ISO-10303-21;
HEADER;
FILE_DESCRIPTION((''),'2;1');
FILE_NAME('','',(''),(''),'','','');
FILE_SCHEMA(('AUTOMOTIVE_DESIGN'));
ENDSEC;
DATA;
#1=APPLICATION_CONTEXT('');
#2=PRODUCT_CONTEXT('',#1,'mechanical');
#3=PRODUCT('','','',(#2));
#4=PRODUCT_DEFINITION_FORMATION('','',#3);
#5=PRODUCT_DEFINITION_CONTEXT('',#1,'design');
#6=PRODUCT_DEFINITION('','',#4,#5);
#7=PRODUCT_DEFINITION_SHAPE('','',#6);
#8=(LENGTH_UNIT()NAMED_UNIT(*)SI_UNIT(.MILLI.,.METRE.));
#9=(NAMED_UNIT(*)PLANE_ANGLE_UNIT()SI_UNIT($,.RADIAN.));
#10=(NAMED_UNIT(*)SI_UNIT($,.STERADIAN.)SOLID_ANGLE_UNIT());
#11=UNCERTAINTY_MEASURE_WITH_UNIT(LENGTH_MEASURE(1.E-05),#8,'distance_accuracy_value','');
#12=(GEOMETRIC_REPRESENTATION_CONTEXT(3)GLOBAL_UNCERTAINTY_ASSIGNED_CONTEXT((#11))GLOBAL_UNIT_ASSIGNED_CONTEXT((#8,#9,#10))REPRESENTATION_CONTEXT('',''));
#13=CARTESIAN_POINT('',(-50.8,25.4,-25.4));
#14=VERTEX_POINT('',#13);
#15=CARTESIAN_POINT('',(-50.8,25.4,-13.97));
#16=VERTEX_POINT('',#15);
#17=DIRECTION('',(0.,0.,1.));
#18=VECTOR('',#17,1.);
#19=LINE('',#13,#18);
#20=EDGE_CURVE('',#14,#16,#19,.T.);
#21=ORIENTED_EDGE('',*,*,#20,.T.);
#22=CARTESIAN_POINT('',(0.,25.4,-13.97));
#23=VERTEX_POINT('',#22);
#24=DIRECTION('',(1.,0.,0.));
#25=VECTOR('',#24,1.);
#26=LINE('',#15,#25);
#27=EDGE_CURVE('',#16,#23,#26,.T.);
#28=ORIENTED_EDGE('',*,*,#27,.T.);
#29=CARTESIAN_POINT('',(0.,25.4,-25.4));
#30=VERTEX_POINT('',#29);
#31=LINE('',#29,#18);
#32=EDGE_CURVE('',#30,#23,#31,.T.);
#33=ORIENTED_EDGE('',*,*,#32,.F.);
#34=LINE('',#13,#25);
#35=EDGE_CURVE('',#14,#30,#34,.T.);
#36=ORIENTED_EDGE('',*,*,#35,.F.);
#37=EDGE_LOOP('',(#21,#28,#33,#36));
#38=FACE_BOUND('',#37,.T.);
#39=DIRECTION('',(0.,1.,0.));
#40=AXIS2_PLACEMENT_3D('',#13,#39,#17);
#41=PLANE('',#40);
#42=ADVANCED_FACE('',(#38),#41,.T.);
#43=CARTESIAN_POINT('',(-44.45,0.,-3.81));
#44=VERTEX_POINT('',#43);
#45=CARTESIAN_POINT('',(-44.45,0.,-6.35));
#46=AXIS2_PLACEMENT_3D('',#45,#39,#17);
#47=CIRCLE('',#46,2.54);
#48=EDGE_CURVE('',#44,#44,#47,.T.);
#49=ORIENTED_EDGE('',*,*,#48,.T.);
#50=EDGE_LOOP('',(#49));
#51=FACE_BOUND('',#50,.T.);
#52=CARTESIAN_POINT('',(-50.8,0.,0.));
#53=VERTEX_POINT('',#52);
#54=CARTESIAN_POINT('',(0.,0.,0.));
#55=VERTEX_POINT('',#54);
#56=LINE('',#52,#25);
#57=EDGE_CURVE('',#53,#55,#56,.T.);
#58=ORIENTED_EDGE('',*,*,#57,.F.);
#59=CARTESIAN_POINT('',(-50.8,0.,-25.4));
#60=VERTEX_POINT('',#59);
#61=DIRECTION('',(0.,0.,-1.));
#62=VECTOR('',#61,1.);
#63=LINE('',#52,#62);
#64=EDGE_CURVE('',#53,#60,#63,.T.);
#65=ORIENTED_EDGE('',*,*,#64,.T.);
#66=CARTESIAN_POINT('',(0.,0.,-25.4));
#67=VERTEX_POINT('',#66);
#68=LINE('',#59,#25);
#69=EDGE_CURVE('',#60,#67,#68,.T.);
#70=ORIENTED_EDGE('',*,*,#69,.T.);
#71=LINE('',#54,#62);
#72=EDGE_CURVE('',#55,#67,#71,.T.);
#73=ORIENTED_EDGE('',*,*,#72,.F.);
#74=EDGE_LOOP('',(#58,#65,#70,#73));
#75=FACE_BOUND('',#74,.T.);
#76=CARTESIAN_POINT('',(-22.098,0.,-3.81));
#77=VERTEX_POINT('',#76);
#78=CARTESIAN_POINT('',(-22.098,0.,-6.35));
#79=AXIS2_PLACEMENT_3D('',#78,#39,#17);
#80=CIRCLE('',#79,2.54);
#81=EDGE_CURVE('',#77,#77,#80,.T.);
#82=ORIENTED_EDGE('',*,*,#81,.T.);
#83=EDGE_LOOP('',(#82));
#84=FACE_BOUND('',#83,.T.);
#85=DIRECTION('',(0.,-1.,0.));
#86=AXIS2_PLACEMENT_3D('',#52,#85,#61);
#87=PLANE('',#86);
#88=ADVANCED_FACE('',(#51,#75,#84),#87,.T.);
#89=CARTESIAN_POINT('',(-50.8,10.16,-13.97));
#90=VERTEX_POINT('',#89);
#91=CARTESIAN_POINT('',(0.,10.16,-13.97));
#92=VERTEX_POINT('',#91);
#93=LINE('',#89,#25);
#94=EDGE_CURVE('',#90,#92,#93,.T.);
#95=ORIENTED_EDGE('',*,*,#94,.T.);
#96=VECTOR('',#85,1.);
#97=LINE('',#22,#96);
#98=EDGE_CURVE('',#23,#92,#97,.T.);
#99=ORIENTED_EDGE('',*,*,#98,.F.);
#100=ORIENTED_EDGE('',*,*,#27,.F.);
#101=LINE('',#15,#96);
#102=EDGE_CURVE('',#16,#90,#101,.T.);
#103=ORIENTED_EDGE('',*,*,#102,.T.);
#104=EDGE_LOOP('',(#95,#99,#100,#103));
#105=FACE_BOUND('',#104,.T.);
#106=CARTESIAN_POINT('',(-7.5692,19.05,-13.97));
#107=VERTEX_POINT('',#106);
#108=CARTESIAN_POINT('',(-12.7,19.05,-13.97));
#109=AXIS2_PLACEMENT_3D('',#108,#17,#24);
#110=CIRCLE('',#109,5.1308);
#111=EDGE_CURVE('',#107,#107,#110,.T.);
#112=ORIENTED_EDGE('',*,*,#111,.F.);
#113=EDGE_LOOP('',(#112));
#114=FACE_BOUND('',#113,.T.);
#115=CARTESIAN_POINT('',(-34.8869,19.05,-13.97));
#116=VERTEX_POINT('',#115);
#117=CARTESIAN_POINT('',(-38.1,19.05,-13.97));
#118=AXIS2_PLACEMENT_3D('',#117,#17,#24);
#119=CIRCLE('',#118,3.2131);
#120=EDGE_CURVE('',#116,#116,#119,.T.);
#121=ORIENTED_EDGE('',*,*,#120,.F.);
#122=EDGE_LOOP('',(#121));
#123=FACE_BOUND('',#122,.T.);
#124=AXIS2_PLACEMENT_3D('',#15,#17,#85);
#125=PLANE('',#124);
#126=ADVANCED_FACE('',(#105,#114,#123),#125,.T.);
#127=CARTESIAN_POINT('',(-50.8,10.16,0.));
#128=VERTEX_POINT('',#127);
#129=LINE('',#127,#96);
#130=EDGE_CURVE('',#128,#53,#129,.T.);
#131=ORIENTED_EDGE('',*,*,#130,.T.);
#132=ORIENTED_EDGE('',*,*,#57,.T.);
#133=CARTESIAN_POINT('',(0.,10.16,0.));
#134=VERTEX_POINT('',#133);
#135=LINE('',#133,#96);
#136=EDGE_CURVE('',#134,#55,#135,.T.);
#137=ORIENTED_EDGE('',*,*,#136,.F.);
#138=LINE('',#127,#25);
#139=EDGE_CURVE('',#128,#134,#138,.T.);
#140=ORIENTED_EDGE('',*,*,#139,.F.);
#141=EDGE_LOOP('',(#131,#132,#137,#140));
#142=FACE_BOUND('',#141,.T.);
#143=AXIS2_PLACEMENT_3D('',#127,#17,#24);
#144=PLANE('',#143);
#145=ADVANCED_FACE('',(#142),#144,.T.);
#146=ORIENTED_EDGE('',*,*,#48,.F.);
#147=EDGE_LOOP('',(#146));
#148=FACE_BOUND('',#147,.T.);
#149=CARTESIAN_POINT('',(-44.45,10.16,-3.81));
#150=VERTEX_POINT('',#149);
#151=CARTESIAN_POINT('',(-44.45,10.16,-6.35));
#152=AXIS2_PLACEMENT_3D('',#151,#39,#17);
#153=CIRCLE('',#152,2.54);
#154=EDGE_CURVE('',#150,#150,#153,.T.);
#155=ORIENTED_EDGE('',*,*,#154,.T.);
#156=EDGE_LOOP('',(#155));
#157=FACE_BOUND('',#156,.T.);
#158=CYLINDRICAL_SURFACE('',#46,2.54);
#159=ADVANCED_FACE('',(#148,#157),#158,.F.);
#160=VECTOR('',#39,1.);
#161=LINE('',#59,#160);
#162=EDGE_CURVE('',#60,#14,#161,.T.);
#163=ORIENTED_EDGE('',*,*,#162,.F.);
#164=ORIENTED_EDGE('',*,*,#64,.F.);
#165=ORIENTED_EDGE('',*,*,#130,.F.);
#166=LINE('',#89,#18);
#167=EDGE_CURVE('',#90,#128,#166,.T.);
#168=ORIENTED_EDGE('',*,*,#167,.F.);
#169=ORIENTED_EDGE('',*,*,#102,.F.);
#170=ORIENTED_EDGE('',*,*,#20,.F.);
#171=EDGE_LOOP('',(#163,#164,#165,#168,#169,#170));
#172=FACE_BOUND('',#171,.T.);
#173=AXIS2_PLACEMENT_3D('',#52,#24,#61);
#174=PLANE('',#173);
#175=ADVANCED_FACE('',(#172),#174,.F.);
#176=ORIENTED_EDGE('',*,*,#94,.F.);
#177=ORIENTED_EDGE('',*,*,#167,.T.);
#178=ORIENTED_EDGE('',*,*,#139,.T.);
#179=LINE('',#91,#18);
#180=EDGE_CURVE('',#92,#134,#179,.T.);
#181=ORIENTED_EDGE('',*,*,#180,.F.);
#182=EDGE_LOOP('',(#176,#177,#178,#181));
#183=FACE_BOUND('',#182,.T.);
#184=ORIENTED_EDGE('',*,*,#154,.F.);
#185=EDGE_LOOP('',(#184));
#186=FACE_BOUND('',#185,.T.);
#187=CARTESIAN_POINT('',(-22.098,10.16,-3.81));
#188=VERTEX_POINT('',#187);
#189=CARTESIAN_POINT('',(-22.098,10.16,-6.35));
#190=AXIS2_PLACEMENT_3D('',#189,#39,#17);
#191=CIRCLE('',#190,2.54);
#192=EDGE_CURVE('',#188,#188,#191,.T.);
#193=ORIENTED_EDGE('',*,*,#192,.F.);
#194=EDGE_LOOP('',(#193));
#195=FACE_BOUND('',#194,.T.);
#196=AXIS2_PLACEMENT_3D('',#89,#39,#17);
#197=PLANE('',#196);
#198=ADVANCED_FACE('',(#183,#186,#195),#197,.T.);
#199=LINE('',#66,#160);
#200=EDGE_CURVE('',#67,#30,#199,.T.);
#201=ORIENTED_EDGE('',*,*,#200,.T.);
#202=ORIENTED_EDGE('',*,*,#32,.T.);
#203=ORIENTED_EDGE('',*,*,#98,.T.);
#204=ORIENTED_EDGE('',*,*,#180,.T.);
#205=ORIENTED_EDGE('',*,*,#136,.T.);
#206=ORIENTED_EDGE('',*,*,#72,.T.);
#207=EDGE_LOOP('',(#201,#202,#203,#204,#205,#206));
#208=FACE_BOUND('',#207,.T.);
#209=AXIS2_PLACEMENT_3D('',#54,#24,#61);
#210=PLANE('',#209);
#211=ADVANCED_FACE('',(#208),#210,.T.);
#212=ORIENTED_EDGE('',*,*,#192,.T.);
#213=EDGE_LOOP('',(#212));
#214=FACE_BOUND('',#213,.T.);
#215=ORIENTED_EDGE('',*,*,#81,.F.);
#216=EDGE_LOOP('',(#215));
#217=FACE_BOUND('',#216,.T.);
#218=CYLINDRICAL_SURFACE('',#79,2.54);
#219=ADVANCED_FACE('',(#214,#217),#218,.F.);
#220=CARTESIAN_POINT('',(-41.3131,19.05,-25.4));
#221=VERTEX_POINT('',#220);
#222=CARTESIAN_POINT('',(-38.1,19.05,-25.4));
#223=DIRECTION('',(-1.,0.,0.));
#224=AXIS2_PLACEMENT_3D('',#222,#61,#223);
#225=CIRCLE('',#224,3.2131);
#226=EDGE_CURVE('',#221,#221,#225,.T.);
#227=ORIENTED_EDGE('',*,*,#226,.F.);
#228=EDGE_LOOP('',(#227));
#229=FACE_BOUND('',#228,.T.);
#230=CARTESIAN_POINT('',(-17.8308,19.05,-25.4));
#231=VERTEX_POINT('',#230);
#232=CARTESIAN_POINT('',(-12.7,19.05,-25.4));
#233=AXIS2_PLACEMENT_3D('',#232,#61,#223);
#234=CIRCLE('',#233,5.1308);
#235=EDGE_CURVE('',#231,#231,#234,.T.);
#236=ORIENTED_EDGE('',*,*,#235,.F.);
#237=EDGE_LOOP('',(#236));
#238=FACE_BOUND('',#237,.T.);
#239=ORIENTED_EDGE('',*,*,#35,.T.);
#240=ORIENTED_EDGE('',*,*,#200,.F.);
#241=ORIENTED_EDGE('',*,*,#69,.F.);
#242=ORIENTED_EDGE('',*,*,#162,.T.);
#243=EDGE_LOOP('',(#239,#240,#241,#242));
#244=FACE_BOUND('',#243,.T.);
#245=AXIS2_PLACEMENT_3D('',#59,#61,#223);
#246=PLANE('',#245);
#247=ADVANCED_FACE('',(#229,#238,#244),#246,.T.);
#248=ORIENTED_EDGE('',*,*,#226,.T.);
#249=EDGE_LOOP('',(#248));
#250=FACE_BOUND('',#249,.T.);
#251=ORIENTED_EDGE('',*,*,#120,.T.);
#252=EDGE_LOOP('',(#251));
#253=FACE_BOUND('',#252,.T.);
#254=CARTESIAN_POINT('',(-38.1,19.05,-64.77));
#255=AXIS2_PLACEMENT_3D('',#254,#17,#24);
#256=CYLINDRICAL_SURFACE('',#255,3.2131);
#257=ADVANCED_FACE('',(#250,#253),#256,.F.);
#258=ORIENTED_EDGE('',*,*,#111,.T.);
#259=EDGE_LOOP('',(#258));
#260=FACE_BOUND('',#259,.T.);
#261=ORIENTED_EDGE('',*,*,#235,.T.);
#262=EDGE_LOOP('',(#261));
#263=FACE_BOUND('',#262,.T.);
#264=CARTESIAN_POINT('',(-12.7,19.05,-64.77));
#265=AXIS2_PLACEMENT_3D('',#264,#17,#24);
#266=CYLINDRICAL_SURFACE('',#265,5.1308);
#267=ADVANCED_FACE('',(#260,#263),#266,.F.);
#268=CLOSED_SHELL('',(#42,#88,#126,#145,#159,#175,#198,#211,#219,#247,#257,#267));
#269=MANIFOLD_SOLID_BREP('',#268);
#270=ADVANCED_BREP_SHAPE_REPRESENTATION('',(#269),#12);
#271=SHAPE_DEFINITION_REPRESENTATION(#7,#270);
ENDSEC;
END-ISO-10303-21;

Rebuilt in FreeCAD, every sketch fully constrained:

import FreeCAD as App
import Part
import Sketcher
from FreeCAD import Vector
Q = App.Units.Quantity

doc = App.newDocument("Part")
body = doc.addObject("PartDesign::Body", "Body")

# Sketch on YZ plane
sketch1 = body.newObject("Sketcher::SketchObject", "Sketch")
sketch1.AttachmentSupport = (doc.getObject("YZ_Plane"), [""])
sketch1.MapMode = "FlatFace"
sketch1.addGeometry([
    Part.LineSegment(Vector(0, 0, 0), Vector(0, -25, 0)),  # 0
    Part.LineSegment(Vector(0, -25, 0), Vector(25, -25, 0)),  # 1
    Part.LineSegment(Vector(25, -25, 0), Vector(25, -14, 0)),  # 2
    Part.LineSegment(Vector(25, -14, 0), Vector(10, -14, 0)),  # 3
    Part.LineSegment(Vector(10, -14, 0), Vector(10, 0, 0)),  # 4
    Part.LineSegment(Vector(10, 0, 0), Vector(0, 0, 0)),  # 5
], False)
sketch1.addConstraint([
    Sketcher.Constraint("Coincident", 0, 2, 1, 1),
    Sketcher.Constraint("Coincident", 1, 2, 2, 1),
    Sketcher.Constraint("Coincident", 2, 2, 3, 1),
    Sketcher.Constraint("Coincident", 3, 2, 4, 1),
    Sketcher.Constraint("Coincident", 4, 2, 5, 1),
    Sketcher.Constraint("Coincident", 5, 2, 0, 1),
    Sketcher.Constraint("Vertical", 0),
    Sketcher.Constraint("Horizontal", 1),
    Sketcher.Constraint("Vertical", 2),
    Sketcher.Constraint("Horizontal", 3),
    Sketcher.Constraint("Vertical", 4),
    Sketcher.Constraint("Horizontal", 5),
    Sketcher.Constraint("Coincident", 5, 2, -1, 1),
    Sketcher.Constraint("Equal", 1, 0),
    Sketcher.Constraint("DistanceX", 1, 1, 1, 2, Q("1 in")),
    Sketcher.Constraint("DistanceX", 3, 2, 3, 1, Q("0.6 in")),
    Sketcher.Constraint("DistanceY", 2, 1, 2, 2, Q("0.45 in")),
])
pad1 = body.newObject("PartDesign::Pad", "Pad")
pad1.Profile = sketch1
pad1.Length = Q("2 in")
pad1.Reversed = True

# Sketch on XZ plane
sketch2 = body.newObject("Sketcher::SketchObject", "Sketch001")
sketch2.AttachmentSupport = (doc.getObject("XZ_Plane"), [""])
sketch2.MapMode = "FlatFace"
sketch2.AttachmentOffset = App.Placement(Vector(0, 0, -0.4 * 25.4), App.Rotation())
sketch2.addGeometry([
    Part.Circle(Vector(-44.5, -6.3, 0), Vector(0, 0, 1), 2.5),
    Part.Circle(Vector(-22.1, -6.3, 0), Vector(0, 0, 1), 2.5),
], False)
sketch2.addConstraint([
    Sketcher.Constraint("Equal", 0, 1),
    Sketcher.Constraint("Horizontal", 0, 3, 1, 3),
    Sketcher.Constraint("Diameter", 0, Q("0.2 in")),
    Sketcher.Constraint("DistanceX", 0, 3, -1, 1, Q("1.75 in")),
    Sketcher.Constraint("DistanceY", 0, 3, -1, 1, Q("0.25 in")),
    Sketcher.Constraint("DistanceX", 1, 3, -1, 1, Q("0.87 in")),
])
pocket1 = body.newObject("PartDesign::Pocket", "Pocket")
pocket1.Profile = sketch2
pocket1.Type = "ThroughAll"
pocket1.Reversed = True

# Sketch on XY plane
sketch3 = body.newObject("Sketcher::SketchObject", "Sketch002")
sketch3.AttachmentSupport = (doc.getObject("XY_Plane"), [""])
sketch3.MapMode = "FlatFace"
sketch3.AttachmentOffset = App.Placement(Vector(0, 0, -0.55 * 25.4), App.Rotation())
sketch3.addGeometry([
    Part.Circle(Vector(-38.1, 19.1, 0), Vector(0, 0, 1), 3.2),
    Part.Circle(Vector(-12.7, 19.1, 0), Vector(0, 0, 1), 5.1),
], False)
sketch3.addConstraint([
    Sketcher.Constraint("Horizontal", 0, 3, 1, 3),
    Sketcher.Constraint("Diameter", 0, Q("0.253 in")),
    Sketcher.Constraint("Diameter", 1, Q("0.404 in")),
    Sketcher.Constraint("DistanceX", 0, 3, 1, 3, Q("1 in")),
    Sketcher.Constraint("DistanceX", 0, 3, -1, 1, Q("1.5 in")),
    Sketcher.Constraint("DistanceY", -1, 1, 0, 3, Q("0.75 in")),
])
pocket2 = body.newObject("PartDesign::Pocket", "Pocket001")
pocket2.Profile = sketch3
pocket2.Length = Q("2 in")

doc.recompute()
